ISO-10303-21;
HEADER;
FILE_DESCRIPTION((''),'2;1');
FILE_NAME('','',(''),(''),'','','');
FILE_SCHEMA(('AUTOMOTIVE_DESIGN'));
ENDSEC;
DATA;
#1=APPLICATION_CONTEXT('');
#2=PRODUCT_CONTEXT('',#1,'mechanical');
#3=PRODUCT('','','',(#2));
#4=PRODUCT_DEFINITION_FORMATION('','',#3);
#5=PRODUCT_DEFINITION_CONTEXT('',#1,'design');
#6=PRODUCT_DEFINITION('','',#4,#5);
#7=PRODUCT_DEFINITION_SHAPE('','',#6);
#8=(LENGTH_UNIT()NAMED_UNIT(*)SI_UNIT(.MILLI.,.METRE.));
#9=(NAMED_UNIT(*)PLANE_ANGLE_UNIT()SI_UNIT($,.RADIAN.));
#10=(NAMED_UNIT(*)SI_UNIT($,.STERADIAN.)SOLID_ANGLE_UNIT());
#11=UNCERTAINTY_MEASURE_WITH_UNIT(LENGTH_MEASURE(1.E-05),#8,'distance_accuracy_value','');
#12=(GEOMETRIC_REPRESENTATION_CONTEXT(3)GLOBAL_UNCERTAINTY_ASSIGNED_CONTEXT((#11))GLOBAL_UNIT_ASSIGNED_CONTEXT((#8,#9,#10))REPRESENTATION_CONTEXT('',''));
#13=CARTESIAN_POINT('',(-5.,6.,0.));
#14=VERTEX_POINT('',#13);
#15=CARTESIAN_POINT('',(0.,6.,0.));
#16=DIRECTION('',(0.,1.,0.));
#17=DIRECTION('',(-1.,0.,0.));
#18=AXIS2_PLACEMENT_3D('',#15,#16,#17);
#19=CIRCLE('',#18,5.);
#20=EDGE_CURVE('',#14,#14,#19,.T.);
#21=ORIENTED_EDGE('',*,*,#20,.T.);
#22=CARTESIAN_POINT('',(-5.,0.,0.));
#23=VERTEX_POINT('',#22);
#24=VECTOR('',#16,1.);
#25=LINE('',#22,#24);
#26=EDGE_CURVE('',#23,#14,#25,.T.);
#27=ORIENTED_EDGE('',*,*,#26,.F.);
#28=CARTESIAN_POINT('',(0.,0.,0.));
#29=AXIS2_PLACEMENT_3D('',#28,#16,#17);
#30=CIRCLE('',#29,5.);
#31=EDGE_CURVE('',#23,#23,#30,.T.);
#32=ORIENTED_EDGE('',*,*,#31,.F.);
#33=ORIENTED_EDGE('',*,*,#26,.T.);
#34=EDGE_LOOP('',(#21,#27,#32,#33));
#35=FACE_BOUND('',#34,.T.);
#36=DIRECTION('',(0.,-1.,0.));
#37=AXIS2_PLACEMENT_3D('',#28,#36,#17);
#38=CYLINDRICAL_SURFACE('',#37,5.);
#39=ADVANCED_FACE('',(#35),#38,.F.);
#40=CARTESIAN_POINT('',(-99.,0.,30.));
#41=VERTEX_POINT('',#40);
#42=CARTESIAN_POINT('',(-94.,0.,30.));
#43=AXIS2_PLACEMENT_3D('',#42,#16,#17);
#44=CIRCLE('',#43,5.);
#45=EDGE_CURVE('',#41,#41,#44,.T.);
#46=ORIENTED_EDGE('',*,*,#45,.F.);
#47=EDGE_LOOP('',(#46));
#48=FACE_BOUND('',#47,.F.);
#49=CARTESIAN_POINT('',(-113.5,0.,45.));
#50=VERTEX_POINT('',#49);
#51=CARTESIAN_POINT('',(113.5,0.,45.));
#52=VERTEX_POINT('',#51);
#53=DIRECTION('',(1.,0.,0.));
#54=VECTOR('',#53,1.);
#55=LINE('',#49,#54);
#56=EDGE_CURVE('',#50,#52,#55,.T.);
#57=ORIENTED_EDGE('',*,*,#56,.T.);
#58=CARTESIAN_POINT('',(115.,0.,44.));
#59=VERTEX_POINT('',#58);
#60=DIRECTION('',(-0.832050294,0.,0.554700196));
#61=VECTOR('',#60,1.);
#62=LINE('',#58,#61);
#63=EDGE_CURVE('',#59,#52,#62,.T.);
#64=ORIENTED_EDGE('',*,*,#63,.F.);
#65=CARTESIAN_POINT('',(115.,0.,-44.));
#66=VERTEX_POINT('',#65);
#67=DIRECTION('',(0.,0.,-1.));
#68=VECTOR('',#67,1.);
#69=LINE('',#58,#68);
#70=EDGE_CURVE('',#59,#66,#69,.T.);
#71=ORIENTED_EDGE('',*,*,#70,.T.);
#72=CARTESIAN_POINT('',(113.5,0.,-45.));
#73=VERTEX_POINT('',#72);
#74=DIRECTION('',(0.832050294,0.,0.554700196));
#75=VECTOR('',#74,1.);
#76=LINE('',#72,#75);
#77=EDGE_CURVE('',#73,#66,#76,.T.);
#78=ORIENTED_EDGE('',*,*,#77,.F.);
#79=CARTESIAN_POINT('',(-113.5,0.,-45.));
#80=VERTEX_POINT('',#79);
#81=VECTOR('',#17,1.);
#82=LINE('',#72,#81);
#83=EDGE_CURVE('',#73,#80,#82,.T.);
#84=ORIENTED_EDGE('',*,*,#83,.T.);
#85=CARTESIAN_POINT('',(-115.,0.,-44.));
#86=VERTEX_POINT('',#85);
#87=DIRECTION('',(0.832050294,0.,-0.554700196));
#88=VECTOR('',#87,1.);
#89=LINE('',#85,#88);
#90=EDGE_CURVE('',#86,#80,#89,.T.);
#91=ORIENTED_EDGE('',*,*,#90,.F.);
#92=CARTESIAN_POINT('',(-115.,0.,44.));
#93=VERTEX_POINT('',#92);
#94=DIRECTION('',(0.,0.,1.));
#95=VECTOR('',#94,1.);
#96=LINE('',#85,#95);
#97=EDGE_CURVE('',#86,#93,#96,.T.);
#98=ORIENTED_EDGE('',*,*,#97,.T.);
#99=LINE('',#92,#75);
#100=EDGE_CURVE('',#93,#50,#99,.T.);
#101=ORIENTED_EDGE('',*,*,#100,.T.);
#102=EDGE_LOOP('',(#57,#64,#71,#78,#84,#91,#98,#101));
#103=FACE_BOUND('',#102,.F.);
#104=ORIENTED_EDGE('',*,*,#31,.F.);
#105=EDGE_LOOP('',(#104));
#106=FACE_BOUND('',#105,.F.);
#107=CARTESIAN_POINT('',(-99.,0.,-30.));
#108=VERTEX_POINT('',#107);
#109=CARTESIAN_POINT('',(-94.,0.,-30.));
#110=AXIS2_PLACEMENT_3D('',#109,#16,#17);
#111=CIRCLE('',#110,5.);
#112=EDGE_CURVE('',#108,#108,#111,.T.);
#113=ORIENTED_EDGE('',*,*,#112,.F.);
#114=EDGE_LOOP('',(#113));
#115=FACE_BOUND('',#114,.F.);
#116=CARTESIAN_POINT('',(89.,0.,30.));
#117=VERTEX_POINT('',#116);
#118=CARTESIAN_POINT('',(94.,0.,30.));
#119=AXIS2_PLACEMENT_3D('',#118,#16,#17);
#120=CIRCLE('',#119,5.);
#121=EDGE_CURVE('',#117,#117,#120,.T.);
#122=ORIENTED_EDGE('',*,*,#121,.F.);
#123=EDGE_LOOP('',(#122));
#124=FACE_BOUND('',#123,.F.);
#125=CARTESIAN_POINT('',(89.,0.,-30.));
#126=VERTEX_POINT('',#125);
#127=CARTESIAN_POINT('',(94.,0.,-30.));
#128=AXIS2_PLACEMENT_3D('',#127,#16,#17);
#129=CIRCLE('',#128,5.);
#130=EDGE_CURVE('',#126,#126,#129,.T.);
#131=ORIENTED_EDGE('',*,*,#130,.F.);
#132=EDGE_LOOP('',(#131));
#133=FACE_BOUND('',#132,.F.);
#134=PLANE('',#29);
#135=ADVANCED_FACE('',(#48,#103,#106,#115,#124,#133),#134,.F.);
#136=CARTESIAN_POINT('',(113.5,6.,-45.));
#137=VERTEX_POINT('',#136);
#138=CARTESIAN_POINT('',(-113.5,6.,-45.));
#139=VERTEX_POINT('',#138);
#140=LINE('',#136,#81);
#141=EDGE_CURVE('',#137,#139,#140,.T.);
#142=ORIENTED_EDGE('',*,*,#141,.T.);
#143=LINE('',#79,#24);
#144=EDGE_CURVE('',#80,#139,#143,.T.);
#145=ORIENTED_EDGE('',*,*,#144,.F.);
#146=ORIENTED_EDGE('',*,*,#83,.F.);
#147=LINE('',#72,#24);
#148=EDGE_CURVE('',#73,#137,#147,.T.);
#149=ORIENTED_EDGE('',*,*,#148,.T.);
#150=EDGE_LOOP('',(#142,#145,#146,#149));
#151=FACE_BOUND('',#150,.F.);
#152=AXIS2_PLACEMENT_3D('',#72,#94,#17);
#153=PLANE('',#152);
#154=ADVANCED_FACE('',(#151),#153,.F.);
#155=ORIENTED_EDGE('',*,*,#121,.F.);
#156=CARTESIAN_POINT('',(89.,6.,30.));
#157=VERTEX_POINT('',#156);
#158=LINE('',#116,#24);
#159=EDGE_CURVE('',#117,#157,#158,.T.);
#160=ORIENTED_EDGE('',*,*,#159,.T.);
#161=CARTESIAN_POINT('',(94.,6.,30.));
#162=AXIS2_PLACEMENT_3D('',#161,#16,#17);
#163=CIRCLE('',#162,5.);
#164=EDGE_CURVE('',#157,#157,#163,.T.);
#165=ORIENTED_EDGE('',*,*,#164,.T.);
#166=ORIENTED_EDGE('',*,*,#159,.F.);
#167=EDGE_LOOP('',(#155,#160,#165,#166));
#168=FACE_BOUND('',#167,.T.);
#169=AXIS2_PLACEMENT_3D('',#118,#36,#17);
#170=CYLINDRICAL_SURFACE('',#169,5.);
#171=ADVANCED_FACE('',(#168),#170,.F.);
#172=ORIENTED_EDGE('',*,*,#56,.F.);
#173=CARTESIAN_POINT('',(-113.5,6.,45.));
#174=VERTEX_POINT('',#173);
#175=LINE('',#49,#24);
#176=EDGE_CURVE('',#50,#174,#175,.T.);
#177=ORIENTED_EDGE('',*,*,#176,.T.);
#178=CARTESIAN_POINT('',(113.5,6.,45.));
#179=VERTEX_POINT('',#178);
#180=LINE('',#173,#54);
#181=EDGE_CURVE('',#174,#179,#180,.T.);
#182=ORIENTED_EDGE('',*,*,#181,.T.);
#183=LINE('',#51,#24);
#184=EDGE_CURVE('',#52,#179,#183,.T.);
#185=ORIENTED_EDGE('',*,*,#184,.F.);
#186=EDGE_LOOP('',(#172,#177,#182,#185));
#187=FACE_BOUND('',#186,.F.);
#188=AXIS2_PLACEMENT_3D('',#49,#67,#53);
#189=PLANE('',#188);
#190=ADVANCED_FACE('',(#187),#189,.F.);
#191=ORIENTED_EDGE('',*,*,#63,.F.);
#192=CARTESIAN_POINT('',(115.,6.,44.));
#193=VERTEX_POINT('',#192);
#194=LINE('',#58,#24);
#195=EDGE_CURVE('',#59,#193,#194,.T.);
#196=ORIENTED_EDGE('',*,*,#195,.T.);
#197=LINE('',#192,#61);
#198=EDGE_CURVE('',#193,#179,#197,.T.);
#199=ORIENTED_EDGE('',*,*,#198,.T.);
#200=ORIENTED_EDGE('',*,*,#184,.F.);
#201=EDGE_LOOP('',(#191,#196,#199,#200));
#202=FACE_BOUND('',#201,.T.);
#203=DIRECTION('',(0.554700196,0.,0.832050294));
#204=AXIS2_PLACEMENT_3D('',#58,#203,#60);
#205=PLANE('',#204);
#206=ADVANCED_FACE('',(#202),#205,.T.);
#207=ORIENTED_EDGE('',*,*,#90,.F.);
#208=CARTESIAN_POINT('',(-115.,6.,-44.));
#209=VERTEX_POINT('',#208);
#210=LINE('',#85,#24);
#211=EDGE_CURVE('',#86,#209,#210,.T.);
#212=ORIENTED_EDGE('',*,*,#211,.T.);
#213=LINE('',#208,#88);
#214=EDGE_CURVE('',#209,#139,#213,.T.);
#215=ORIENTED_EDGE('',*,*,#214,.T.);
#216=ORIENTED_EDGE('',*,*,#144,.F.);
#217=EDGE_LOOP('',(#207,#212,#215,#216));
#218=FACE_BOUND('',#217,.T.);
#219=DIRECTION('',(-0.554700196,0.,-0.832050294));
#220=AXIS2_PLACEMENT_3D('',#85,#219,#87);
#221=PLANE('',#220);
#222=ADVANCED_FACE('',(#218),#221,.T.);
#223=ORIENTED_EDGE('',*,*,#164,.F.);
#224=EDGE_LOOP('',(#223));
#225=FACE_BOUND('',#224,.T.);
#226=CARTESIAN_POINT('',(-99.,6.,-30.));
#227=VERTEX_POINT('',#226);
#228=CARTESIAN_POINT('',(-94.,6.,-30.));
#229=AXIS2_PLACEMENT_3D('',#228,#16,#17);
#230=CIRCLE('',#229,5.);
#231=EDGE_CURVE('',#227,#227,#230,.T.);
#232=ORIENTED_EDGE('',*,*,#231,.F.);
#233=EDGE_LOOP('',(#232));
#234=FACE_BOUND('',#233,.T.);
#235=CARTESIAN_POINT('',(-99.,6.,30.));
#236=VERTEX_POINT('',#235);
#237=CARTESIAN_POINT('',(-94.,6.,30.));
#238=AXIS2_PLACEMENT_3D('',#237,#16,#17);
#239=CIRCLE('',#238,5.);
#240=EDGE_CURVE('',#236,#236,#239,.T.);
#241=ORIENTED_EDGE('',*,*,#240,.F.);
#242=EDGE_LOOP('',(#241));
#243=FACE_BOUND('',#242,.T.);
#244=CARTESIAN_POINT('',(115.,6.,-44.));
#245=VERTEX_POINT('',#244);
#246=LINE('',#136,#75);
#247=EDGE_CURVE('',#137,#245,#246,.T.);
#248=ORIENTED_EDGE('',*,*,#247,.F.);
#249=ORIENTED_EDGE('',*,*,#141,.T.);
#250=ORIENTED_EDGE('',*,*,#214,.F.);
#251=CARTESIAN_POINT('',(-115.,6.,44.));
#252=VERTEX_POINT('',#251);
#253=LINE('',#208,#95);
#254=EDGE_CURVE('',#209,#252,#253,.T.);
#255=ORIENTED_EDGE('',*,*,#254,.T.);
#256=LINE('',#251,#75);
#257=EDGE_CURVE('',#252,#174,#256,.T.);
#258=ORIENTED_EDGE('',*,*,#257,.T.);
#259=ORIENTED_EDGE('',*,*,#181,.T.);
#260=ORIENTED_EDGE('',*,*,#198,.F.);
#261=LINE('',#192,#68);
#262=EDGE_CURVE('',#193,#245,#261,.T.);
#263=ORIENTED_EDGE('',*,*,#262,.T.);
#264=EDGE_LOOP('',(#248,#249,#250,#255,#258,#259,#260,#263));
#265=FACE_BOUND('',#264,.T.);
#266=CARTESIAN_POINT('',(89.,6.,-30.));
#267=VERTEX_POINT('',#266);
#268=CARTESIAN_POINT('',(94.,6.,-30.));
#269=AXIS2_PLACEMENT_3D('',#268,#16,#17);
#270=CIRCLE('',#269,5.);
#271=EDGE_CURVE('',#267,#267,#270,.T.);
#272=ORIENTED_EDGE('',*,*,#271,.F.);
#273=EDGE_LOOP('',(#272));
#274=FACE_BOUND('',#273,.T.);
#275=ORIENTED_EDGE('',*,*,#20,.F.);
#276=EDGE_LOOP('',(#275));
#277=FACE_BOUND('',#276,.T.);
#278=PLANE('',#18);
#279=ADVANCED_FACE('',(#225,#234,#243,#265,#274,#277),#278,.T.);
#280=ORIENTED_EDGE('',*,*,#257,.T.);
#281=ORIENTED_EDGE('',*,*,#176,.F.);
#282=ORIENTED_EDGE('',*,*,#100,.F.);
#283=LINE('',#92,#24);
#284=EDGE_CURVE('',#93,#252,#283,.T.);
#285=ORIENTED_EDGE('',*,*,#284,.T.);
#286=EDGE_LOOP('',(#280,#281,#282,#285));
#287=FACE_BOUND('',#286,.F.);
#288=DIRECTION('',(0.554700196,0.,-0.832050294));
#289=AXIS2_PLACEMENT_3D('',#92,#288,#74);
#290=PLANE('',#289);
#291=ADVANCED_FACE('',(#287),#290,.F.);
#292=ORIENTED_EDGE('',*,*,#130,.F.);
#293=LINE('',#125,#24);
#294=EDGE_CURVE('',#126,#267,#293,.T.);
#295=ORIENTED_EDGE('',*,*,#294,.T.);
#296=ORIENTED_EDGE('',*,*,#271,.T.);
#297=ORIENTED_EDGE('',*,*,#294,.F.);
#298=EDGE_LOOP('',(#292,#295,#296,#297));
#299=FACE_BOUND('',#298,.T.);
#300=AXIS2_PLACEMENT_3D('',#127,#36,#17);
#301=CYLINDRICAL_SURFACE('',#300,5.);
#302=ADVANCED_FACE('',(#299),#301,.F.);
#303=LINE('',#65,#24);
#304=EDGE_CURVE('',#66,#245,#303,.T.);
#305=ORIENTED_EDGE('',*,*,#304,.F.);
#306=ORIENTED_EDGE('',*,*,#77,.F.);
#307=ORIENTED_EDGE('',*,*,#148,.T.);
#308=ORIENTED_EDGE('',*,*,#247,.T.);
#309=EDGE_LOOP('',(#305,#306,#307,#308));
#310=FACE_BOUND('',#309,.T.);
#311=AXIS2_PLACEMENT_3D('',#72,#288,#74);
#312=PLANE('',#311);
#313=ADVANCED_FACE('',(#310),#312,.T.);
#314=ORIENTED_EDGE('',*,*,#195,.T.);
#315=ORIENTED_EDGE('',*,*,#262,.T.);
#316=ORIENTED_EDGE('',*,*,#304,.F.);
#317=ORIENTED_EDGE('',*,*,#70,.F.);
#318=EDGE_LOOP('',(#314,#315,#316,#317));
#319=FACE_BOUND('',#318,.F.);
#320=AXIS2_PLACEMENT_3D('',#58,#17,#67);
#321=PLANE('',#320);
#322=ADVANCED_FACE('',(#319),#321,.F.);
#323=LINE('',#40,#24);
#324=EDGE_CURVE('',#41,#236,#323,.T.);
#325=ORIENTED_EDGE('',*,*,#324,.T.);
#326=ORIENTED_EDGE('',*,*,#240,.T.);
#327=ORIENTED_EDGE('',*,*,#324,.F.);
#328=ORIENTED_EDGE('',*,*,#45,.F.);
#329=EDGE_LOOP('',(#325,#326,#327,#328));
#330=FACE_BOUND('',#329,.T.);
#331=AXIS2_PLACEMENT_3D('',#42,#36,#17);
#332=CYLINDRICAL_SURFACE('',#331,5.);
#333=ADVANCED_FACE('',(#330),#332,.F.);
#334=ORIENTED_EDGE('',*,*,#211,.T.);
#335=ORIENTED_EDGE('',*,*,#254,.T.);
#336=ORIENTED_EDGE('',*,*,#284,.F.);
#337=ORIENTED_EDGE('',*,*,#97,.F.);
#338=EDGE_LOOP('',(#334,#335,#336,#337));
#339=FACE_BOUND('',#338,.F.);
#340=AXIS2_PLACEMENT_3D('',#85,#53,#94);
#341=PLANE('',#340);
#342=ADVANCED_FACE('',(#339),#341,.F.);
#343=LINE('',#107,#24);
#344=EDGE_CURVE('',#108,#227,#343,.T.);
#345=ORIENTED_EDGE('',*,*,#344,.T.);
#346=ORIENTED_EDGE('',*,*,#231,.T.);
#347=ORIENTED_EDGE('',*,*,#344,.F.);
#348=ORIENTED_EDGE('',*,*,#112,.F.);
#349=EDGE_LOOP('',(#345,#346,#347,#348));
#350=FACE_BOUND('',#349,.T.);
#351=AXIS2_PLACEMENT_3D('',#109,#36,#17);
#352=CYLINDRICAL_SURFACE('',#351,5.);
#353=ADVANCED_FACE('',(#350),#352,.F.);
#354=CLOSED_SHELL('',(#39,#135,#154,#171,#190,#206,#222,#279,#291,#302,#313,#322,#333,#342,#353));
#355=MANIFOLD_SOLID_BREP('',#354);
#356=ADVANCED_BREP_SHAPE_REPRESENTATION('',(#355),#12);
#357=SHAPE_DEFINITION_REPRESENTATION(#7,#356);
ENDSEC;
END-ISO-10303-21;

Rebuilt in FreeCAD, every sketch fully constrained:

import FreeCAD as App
import Part
import Sketcher
from FreeCAD import Vector
Q = App.Units.Quantity


def add_polygon(sketch, points):
    """Adds a closed chain of lines whose ends are joined by coincident constraints."""
    first, n = sketch.GeometryCount, len(points)
    for a, b in zip(points, points[1:] + points[:1]):
        sketch.addGeometry(Part.LineSegment(App.Vector(*a, 0), App.Vector(*b, 0)), False)
    for i in range(n):
        sketch.addConstraint(Sketcher.Constraint("Coincident", first + i, 2, first + (i + 1) % n, 1))

doc = App.newDocument("Part")
body = doc.addObject("PartDesign::Body", "Body")

sketch1 = body.newObject("Sketcher::SketchObject", "Sketch")
sketch1.AttachmentSupport = (doc.getObject("XZ_Plane"), [""])
sketch1.MapMode = "FlatFace"
add_polygon(sketch1, [(115, -44), (113.5, -45), (-113.5, -45), (-115, -44), (-115, 44), (-113.5, 45), (113.5, 45), (115, 44)])
sketch1.addGeometry(Part.Circle(Vector(94, -30, 0), Vector(0, 0, 1), 5), False)
sketch1.addGeometry(Part.Circle(Vector(-94, -30, 0), Vector(0, 0, 1), 5), False)
sketch1.addGeometry(Part.Circle(Vector(94, 30, 0), Vector(0, 0, 1), 5), False)
sketch1.addGeometry(Part.Circle(Vector(0, 0, 0), Vector(0, 0, 1), 5), False)
sketch1.addGeometry(Part.Circle(Vector(-94, 30, 0), Vector(0, 0, 1), 5), False)
sketch1.addConstraint(Sketcher.Constraint("Horizontal", 1))
sketch1.addConstraint(Sketcher.Constraint("Vertical", 3))
sketch1.addConstraint(Sketcher.Constraint("Horizontal", 5))
sketch1.addConstraint(Sketcher.Constraint("Vertical", 7))
sketch1.addConstraint(Sketcher.Constraint("Coincident", 11, 3, -1, 1))
sketch1.addConstraint(Sketcher.Constraint("Equal", 8, 9))
sketch1.addConstraint(Sketcher.Constraint("Equal", 9, 10))
sketch1.addConstraint(Sketcher.Constraint("Equal", 10, 11))
sketch1.addConstraint(Sketcher.Constraint("Equal", 11, 12))
sketch1.addConstraint(Sketcher.Constraint("Symmetric", 9, 3, 10, 3, -1, 1))
sketch1.addConstraint(Sketcher.Constraint("Symmetric", 8, 3, 12, 3, -1, 1))
sketch1.addConstraint(Sketcher.Constraint("Symmetric", 0, 2, 4, 2, -1, 1))
sketch1.addConstraint(Sketcher.Constraint("Symmetric", 2, 2, 6, 2, -1, 1))
sketch1.addConstraint(Sketcher.Constraint("Symmetric", 8, 3, 9, 3, -2))
sketch1.addConstraint(Sketcher.Constraint("Parallel", 0, 4))
sketch1.addConstraint(Sketcher.Constraint("Parallel", 2, 6))
sketch1.addConstraint(Sketcher.Constraint("Horizontal", 3, 2, 6, 2))
sketch1.addConstraint(Sketcher.Constraint("Vertical", 1, 2, 4, 2))
sketch1.addConstraint(Sketcher.Constraint("Diameter", 8, Q("10 mm")))
sketch1.addConstraint(Sketcher.Constraint("DistanceX", -1, 1, 8, 3, Q("94 mm")))
sketch1.addConstraint(Sketcher.Constraint("DistanceY", 8, 3, -1, 1, Q("30 mm")))
sketch1.addConstraint(Sketcher.Constraint("DistanceY", 0, 2, -1, 1, Q("45 mm")))
sketch1.addConstraint(Sketcher.Constraint("DistanceX", 2, 2, -1, 1, Q("115 mm")))
sketch1.addConstraint(Sketcher.Constraint("DistanceY", 1, 2, 2, 2, Q("1 mm")))
sketch1.addConstraint(Sketcher.Constraint("DistanceX", 2, 2, 1, 2, Q("1.5 mm")))
pad1 = body.newObject("PartDesign::Pad", "Pad")
pad1.Profile = sketch1
pad1.Length = 6
pad1.Reversed = True

doc.recompute()
